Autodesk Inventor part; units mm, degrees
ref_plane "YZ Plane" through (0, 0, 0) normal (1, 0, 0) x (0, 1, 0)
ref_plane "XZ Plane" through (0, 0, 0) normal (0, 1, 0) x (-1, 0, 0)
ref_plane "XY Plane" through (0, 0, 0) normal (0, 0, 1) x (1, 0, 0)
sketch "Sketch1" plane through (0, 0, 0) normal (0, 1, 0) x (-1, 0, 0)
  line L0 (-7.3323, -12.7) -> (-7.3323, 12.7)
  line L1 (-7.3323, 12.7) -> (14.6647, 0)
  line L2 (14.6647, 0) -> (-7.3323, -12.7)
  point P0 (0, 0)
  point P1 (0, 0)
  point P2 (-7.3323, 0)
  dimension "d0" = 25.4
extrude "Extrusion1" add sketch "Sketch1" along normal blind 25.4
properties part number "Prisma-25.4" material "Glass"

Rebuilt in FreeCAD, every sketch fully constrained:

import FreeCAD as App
import Part
import Sketcher
Q = App.Units.Quantity


def add_polygon(sketch, points):
    """Adds a closed chain of lines whose ends are joined by coincident constraints."""
    first, n = sketch.GeometryCount, len(points)
    for a, b in zip(points, points[1:] + points[:1]):
        sketch.addGeometry(Part.LineSegment(App.Vector(*a, 0), App.Vector(*b, 0)), False)
    for i in range(n):
        sketch.addConstraint(Sketcher.Constraint("Coincident", first + i, 2, first + (i + 1) % n, 1))

doc = App.newDocument("Part")
params = doc.addObject("Spreadsheet::Sheet", "Params")
for row, (alias, value) in enumerate([
    ("sketch1_height", "1 in"),
    ("sketch1_length", "1 in"),
    ("pad1_length", "1 in"),
], start=1):
    params.set(f"A{row}", alias)
    params.set(f"B{row}", "=" + value)
    params.setAlias(f"B{row}", alias)

body = doc.addObject("PartDesign::Body", "Body")

sketch1 = body.newObject("Sketcher::SketchObject", "Sketch")
sketch1.AttachmentSupport = (doc.getObject("XZ_Plane"), [""])
sketch1.MapMode = "FlatFace"
add_polygon(sketch1, [(7.3323, 12.7), (7.3323, -12.7), (-14.6647, 0)])
sketch1.addConstraint([
    Sketcher.Constraint("Vertical", 0),
    Sketcher.Constraint("PointOnObject", 1, 2, -1),
    Sketcher.Constraint("Equal", 1, 2),
    Sketcher.Constraint("DistanceY", 0, 2, 0, 1, Q("1 in")),
    Sketcher.Constraint("Distance", 1, Q("1 in")),
    Sketcher.Constraint("DistanceX", -1, 1, 0, 2, 7.3323),
])
sketch1.setExpression("Constraints[6]", "Params.sketch1_height")
sketch1.setExpression("Constraints[7]", "Params.sketch1_length")
pad1 = body.newObject("PartDesign::Pad", "Pad")
pad1.Profile = sketch1
pad1.setExpression("Length", "Params.pad1_length")
pad1.Reversed = True

doc.recompute()
